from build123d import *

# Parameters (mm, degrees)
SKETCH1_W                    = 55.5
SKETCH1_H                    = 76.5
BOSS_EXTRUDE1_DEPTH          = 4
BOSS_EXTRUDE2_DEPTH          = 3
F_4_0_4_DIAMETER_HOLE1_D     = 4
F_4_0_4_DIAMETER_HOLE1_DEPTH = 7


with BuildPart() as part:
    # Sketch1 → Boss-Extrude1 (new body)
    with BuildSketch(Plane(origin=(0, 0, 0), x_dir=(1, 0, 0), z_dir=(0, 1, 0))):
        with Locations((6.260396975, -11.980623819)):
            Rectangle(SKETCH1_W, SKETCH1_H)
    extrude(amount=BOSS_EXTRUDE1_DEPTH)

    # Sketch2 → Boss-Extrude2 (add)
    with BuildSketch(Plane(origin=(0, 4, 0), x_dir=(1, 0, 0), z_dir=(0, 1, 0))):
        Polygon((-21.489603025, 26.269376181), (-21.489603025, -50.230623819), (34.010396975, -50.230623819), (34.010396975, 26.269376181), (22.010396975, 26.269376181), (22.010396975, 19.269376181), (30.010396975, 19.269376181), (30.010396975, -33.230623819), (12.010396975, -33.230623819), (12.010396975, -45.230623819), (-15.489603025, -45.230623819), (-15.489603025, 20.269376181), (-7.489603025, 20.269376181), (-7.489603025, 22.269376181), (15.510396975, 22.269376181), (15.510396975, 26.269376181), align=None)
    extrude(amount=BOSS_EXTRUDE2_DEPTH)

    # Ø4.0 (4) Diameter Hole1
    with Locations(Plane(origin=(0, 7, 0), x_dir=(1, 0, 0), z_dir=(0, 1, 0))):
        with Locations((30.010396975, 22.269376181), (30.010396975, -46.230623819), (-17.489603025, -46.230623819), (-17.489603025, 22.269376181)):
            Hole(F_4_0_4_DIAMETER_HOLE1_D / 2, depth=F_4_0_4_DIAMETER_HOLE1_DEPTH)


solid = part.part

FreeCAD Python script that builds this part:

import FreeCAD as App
import Part
import Sketcher

V = App.Vector
Q = App.Units.Quantity


def add_polygon(sketch, points):
    """Adds a closed chain of lines whose ends are joined by coincident constraints."""
    first, n = sketch.GeometryCount, len(points)
    for a, b in zip(points, points[1:] + points[:1]):
        sketch.addGeometry(Part.LineSegment(App.Vector(*a, 0), App.Vector(*b, 0)), False)
    for i in range(n):
        sketch.addConstraint(Sketcher.Constraint("Coincident", first + i, 2, first + (i + 1) % n, 1))

doc = App.newDocument("Part")
body = doc.addObject("PartDesign::Body", "Body")

# Sketch on XZ plane
sketch1 = body.newObject("Sketcher::SketchObject", "Sketch")
sketch1.AttachmentSupport = (doc.getObject("XZ_Plane"), [""])
sketch1.MapMode = "FlatFace"
add_polygon(sketch1, [(-21.489603, -26.269376), (-21.489603, 50.230624), (34.010397, 50.230624), (34.010397, -26.269376)])  # lines 0-3
sketch1.addConstraint([
    Sketcher.Constraint("Vertical", 0),
    Sketcher.Constraint("Horizontal", 1),
    Sketcher.Constraint("Vertical", 2),
    Sketcher.Constraint("Horizontal", 3),
    Sketcher.Constraint("DistanceX", 1, 1, 1, 2, Q("55.5 mm")),
    Sketcher.Constraint("DistanceY", 0, 1, 0, 2, Q("76.5 mm")),
    Sketcher.Constraint("DistanceX", 0, 2, -1, 1, Q("21.489603 mm")),
    Sketcher.Constraint("DistanceY", -1, 1, 0, 2, Q("50.230624 mm")),
])
pad1 = body.newObject("PartDesign::Pad", "Pad")
pad1.Profile = sketch1
pad1.Length = 4
pad1.Reversed = True

# Sketch on XZ plane
sketch2 = body.newObject("Sketcher::SketchObject", "Sketch001")
sketch2.AttachmentSupport = (doc.getObject("XZ_Plane"), [""])
sketch2.MapMode = "FlatFace"
sketch2.AttachmentOffset = App.Placement(V(0, 0, -4), App.Rotation())
add_polygon(sketch2, [(-21.489603, -26.269376), (-21.489603, 50.230624), (34.010397, 50.230624), (34.010397, -26.269376), (22.010397, -26.269376), (22.010397, -19.269376), (30.010397, -19.269376), (30.010397, 33.230624), (12.010397, 33.230624), (12.010397, 45.230624), (-15.489603, 45.230624), (-15.489603, -20.269376), (-7.489603, -20.269376), (-7.489603, -22.269376), (15.510397, -22.269376), (15.510397, -26.269376)])  # lines 0-15
sketch2.addConstraint([
    Sketcher.Constraint("Vertical", 0),
    Sketcher.Constraint("Horizontal", 1),
    Sketcher.Constraint("Vertical", 2),
    Sketcher.Constraint("Horizontal", 3),
    Sketcher.Constraint("Vertical", 4),
    Sketcher.Constraint("Horizontal", 5),
    Sketcher.Constraint("Vertical", 6),
    Sketcher.Constraint("Horizontal", 7),
    Sketcher.Constraint("Vertical", 8),
    Sketcher.Constraint("Horizontal", 9),
    Sketcher.Constraint("Vertical", 10),
    Sketcher.Constraint("Horizontal", 11),
    Sketcher.Constraint("Vertical", 12),
    Sketcher.Constraint("Horizontal", 13),
    Sketcher.Constraint("Vertical", 14),
    Sketcher.Constraint("Horizontal", 15),
    Sketcher.Constraint("Horizontal", 3, 2, 14, 2),
    Sketcher.Constraint("Equal", 5, 11),
    Sketcher.Constraint("Equal", 3, 8),
    Sketcher.Constraint("DistanceX", 3, 2, 3, 1, Q("12 mm")),
    Sketcher.Constraint("DistanceX", 5, 1, 5, 2, Q("8 mm")),
    Sketcher.Constraint("DistanceX", 7, 2, 7, 1, Q("18 mm")),
    Sketcher.Constraint("DistanceX", 13, 1, 13, 2, Q("23 mm")),
    Sketcher.Constraint("DistanceX", 15, 2, 15, 1, Q("37 mm")),
    Sketcher.Constraint("DistanceY", 4, 1, 4, 2, Q("7 mm")),
    Sketcher.Constraint("DistanceY", 12, 2, 12, 1, Q("2 mm")),
    Sketcher.Constraint("DistanceY", 14, 2, 14, 1, Q("4 mm")),
    Sketcher.Constraint("DistanceX", 1, 1, 1, 2, Q("55.5 mm")),
    Sketcher.Constraint("DistanceY", 0, 1, 0, 2, Q("76.5 mm")),
    Sketcher.Constraint("DistanceY", 6, 1, 6, 2, Q("52.5 mm")),
    Sketcher.Constraint("DistanceX", 0, 2, -1, 1, Q("21.489603 mm")),
    Sketcher.Constraint("DistanceY", -1, 1, 0, 2, Q("50.230624 mm")),
])
pad2 = body.newObject("PartDesign::Pad", "Pad001")
pad2.Profile = sketch2
pad2.Length = 3
pad2.Reversed = True

# Sketch on XZ plane
sketch3 = body.newObject("Sketcher::SketchObject", "Sketch002")
sketch3.AttachmentSupport = (doc.getObject("XZ_Plane"), [""])
sketch3.MapMode = "FlatFace"
sketch3.AttachmentOffset = App.Placement(V(0, 0, -7), App.Rotation())
sketch3.addGeometry([
    Part.Circle(V(30.010397, -22.269376, 0), V(0, 0, 1), 2),
    Part.Circle(V(30.010397, 46.230624, 0), V(0, 0, 1), 2),
    Part.Circle(V(-17.489603, 46.230624, 0), V(0, 0, 1), 2),
    Part.Circle(V(-17.489603, -22.269376, 0), V(0, 0, 1), 2),
], False)
sketch3.addConstraint([
    Sketcher.Constraint("Equal", 0, 1),
    Sketcher.Constraint("Equal", 1, 2),
    Sketcher.Constraint("Equal", 2, 3),
    Sketcher.Constraint("Horizontal", 1, 3, 2, 3),
    Sketcher.Constraint("Horizontal", 0, 3, 3, 3),
    Sketcher.Constraint("Vertical", 0, 3, 1, 3),
    Sketcher.Constraint("Vertical", 2, 3, 3, 3),
    Sketcher.Constraint("Diameter", 0, Q("4 mm")),
    Sketcher.Constraint("DistanceY", 0, 3, 1, 3, Q("68.5 mm")),
    Sketcher.Constraint("DistanceX", 2, 3, 1, 3, Q("47.5 mm")),
    Sketcher.Constraint("DistanceX", -1, 1, 0, 3, Q("30.010397 mm")),
    Sketcher.Constraint("DistanceY", 0, 3, -1, 1, Q("22.269376 mm")),
])
doc.recompute()
hole = body.newObject("PartDesign::Hole", "Hole")
hole.Profile = sketch3
hole.ThreadType = "None"
hole.Diameter = 4
hole.DepthType = "Dimension"
hole.Depth = 7
hole.DrillPoint = "Flat"
hole.Reversed = True

doc.recompute()
